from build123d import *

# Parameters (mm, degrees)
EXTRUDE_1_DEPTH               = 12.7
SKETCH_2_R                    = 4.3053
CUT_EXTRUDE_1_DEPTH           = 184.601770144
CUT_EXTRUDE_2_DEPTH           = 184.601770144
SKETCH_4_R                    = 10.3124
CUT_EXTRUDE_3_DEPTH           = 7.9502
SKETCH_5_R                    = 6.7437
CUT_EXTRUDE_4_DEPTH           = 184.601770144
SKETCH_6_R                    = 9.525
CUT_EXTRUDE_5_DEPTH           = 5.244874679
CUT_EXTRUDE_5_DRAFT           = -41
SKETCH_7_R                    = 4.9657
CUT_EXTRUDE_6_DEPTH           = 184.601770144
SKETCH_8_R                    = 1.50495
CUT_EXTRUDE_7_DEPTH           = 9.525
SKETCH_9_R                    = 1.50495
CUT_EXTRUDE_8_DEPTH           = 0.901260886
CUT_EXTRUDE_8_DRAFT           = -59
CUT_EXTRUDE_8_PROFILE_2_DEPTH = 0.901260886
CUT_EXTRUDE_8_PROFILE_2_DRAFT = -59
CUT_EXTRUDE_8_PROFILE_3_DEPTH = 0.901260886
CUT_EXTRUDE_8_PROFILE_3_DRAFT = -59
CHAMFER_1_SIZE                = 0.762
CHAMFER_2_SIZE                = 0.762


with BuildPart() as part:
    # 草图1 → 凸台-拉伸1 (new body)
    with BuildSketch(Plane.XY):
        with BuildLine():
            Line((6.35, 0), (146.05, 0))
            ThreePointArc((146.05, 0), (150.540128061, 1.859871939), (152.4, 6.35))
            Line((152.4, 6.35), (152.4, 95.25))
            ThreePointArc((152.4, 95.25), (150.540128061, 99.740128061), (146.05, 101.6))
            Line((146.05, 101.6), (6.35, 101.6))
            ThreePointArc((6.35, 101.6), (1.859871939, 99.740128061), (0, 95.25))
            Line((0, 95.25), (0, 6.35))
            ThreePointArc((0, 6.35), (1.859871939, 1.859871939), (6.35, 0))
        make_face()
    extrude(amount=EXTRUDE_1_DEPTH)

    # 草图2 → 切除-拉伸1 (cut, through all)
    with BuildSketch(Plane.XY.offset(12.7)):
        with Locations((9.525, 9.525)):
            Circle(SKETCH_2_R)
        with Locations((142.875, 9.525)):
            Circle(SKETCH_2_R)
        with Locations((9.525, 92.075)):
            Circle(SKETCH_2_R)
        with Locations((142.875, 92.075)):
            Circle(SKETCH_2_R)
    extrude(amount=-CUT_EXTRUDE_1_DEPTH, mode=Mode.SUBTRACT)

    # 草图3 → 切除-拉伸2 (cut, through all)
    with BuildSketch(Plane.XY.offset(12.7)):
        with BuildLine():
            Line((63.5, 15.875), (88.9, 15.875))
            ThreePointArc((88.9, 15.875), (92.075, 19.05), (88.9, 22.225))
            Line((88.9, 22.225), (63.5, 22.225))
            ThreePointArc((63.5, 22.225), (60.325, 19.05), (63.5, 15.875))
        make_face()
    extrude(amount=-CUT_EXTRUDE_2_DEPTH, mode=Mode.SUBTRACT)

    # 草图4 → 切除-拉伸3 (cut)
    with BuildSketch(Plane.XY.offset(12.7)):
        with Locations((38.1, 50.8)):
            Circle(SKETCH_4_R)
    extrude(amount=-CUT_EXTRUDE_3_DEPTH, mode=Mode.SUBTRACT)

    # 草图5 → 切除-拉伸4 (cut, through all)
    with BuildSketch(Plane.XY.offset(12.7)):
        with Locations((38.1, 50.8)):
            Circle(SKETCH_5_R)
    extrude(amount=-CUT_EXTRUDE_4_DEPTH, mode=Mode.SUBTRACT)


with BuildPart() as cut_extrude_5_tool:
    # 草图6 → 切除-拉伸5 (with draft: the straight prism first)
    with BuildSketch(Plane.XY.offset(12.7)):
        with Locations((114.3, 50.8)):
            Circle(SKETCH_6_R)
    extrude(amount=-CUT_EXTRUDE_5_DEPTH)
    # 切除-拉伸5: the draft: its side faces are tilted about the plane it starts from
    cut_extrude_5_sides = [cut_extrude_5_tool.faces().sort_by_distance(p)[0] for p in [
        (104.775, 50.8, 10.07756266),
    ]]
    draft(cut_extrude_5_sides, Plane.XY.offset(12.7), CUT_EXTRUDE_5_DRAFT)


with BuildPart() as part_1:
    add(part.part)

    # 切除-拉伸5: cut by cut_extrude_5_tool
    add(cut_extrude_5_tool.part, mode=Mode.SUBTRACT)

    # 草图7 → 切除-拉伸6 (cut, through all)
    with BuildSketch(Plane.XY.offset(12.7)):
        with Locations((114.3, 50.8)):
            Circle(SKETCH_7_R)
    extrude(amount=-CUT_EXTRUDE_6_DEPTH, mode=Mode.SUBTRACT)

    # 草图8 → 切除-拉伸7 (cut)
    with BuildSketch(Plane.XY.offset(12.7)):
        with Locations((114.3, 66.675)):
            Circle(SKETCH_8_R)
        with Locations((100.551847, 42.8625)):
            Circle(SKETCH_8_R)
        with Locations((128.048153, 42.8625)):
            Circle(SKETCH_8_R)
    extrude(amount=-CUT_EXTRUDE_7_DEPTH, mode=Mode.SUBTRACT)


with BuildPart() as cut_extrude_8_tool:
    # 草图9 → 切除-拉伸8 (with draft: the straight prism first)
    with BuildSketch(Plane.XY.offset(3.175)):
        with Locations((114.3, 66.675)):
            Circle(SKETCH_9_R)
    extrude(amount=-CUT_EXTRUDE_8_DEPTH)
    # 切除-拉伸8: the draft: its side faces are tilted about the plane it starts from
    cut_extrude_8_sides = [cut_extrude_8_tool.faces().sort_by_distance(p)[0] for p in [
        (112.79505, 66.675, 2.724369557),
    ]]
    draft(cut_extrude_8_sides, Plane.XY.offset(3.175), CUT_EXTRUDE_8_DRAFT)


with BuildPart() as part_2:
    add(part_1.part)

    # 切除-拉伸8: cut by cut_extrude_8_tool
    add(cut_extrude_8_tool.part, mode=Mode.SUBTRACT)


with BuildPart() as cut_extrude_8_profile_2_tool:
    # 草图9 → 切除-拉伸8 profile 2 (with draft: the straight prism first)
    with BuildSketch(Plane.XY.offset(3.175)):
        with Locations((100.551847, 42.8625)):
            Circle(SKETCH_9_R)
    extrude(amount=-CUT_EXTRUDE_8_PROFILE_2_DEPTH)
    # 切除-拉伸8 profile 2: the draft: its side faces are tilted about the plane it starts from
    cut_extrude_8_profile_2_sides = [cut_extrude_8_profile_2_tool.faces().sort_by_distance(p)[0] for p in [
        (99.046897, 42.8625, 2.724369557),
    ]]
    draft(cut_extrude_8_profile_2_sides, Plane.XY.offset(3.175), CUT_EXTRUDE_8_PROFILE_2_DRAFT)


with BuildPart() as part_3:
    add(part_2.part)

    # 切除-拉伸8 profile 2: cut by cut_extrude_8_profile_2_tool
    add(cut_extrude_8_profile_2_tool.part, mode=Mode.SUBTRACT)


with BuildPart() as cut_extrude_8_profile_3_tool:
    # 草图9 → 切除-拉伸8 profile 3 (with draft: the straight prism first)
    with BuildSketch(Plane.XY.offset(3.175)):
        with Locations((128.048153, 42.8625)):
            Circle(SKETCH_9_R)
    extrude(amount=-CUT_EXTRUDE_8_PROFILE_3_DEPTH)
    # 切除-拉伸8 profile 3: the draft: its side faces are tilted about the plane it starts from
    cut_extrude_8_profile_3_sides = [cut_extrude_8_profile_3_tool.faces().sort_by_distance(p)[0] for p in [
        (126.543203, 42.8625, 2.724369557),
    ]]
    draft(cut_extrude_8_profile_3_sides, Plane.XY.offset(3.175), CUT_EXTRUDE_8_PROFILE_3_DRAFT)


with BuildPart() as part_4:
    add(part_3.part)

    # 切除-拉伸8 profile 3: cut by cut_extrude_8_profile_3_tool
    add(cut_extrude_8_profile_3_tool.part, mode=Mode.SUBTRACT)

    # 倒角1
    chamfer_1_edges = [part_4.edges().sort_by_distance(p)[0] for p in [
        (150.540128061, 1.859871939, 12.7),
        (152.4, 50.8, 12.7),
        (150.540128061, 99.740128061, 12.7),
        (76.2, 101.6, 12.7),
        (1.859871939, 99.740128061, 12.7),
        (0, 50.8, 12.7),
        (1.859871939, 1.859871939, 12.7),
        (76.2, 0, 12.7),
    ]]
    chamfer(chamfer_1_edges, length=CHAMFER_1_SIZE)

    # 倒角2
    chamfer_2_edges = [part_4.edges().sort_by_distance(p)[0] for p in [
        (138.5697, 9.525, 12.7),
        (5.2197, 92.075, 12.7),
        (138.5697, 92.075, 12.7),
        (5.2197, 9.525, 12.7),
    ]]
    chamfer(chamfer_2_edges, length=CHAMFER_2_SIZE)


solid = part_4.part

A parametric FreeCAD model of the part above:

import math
import FreeCAD as App
import Part
import Sketcher
Q = App.Units.Quantity


def edges_at(feature, points):
    """Names of the edges that pass closest to the given points."""
    edges = feature.Shape.Edges
    near = lambda p: min(range(len(edges)), key=lambda i: edges[i].distToShape(Part.Vertex(*p))[0])
    return sorted({f"Edge{near(p) + 1}" for p in points})


def faces_at(feature, points):
    """Names of the faces that lie closest to the given points."""
    faces = feature.Shape.Faces
    near = lambda p: min(range(len(faces)), key=lambda i: faces[i].distToShape(Part.Vertex(*p))[0])
    return sorted({f"Face{near(p) + 1}" for p in points})

doc = App.newDocument("Part")
body = doc.addObject("PartDesign::Body", "Body")

# Sketch on XY plane
sketch1 = body.newObject("Sketcher::SketchObject", "Sketch")
sketch1.AttachmentSupport = (doc.getObject("XY_Plane"), [""])
sketch1.MapMode = "FlatFace"
sketch1.addGeometry([
    Part.LineSegment(App.Vector(6, 0, 0), App.Vector(146, 0, 0)),  # 0
    Part.ArcOfCircle(Part.Circle(App.Vector(146, 6, 0), App.Vector(0, 0, 1), 6), math.radians(-90), math.radians(0)),  # 1
    Part.LineSegment(App.Vector(152, 6, 0), App.Vector(152, 95, 0)),  # 2
    Part.ArcOfCircle(Part.Circle(App.Vector(146, 95, 0), App.Vector(0, 0, 1), 6), math.radians(0), math.radians(90)),  # 3
    Part.LineSegment(App.Vector(146, 102, 0), App.Vector(6, 102, 0)),  # 4
    Part.ArcOfCircle(Part.Circle(App.Vector(6, 95, 0), App.Vector(0, 0, 1), 6), math.radians(90), math.radians(180)),  # 5
    Part.LineSegment(App.Vector(0, 95, 0), App.Vector(0, 6, 0)),  # 6
    Part.ArcOfCircle(Part.Circle(App.Vector(6, 6, 0), App.Vector(0, 0, 1), 6), math.radians(180), math.radians(270)),  # 7
], False)
sketch1.addConstraint([
    Sketcher.Constraint("Tangent", 0, 2, 1, 1),
    Sketcher.Constraint("Tangent", 1, 2, 2, 1),
    Sketcher.Constraint("Tangent", 2, 2, 3, 1),
    Sketcher.Constraint("Tangent", 3, 2, 4, 1),
    Sketcher.Constraint("Tangent", 4, 2, 5, 1),
    Sketcher.Constraint("Tangent", 5, 2, 6, 1),
    Sketcher.Constraint("Tangent", 6, 2, 7, 1),
    Sketcher.Constraint("Tangent", 7, 2, 0, 1),
    Sketcher.Constraint("Horizontal", 0),
    Sketcher.Constraint("Vertical", 2),
    Sketcher.Constraint("Horizontal", 4),
    Sketcher.Constraint("Vertical", 6),
    Sketcher.Constraint("Equal", 1, 3),
    Sketcher.Constraint("Equal", 3, 5),
    Sketcher.Constraint("Equal", 5, 7),
    Sketcher.Constraint("PointOnObject", 0, 2, -1),
    Sketcher.Constraint("PointOnObject", 5, 2, -2),
    Sketcher.Constraint("Radius", 1, Q("0.25 in")),
    Sketcher.Constraint("DistanceX", 0, 1, 0, 2, Q("5.5 in")),
    Sketcher.Constraint("DistanceY", 2, 1, 2, 2, Q("3.5 in")),
])
pad1 = body.newObject("PartDesign::Pad", "Pad")
pad1.Profile = sketch1
pad1.Length = Q("0.5 in")

# Sketch on XY plane
sketch2 = body.newObject("Sketcher::SketchObject", "Sketch001")
sketch2.AttachmentSupport = (doc.getObject("XY_Plane"), [""])
sketch2.MapMode = "FlatFace"
sketch2.AttachmentOffset = App.Placement(App.Vector(0, 0, 0.5 * 25.4), App.Rotation())
sketch2.addGeometry([
    Part.Circle(App.Vector(9.5, 9.5, 0), App.Vector(0, 0, 1), 4.3),
    Part.Circle(App.Vector(142.9, 9.5, 0), App.Vector(0, 0, 1), 4.3),
    Part.Circle(App.Vector(9.5, 92.1, 0), App.Vector(0, 0, 1), 4.3),
    Part.Circle(App.Vector(142.9, 92.1, 0), App.Vector(0, 0, 1), 4.3),
], False)
sketch2.addConstraint([
    Sketcher.Constraint("Equal", 0, 1),
    Sketcher.Constraint("Equal", 1, 2),
    Sketcher.Constraint("Equal", 2, 3),
    Sketcher.Constraint("Horizontal", 0, 3, 1, 3),
    Sketcher.Constraint("Horizontal", 2, 3, 3, 3),
    Sketcher.Constraint("Vertical", 0, 3, 2, 3),
    Sketcher.Constraint("Vertical", 1, 3, 3, 3),
    Sketcher.Constraint("Diameter", 0, Q("0.339 in")),
    Sketcher.Constraint("DistanceX", 0, 3, 1, 3, Q("5.25 in")),
    Sketcher.Constraint("DistanceY", 0, 3, 2, 3, Q("3.25 in")),
    Sketcher.Constraint("DistanceX", -1, 1, 0, 3, Q("0.375 in")),
    Sketcher.Constraint("DistanceY", -1, 1, 0, 3, Q("0.375 in")),
])
pocket1 = body.newObject("PartDesign::Pocket", "Pocket")
pocket1.Profile = sketch2
pocket1.Type = "ThroughAll"

# Sketch on XY plane
sketch3 = body.newObject("Sketcher::SketchObject", "Sketch002")
sketch3.AttachmentSupport = (doc.getObject("XY_Plane"), [""])
sketch3.MapMode = "FlatFace"
sketch3.AttachmentOffset = App.Placement(App.Vector(0, 0, 0.5 * 25.4), App.Rotation())
sketch3.addGeometry([
    Part.LineSegment(App.Vector(63.5, 15.9, 0), App.Vector(88.9, 15.9, 0)),
    Part.ArcOfCircle(Part.Circle(App.Vector(88.9, 19.1, 0), App.Vector(0, 0, 1), 3.2), math.radians(-90), math.radians(90)),
    Part.LineSegment(App.Vector(88.9, 22.2, 0), App.Vector(63.5, 22.2, 0)),
    Part.ArcOfCircle(Part.Circle(App.Vector(63.5, 19.1, 0), App.Vector(0, 0, 1), 3.2), math.radians(90), math.radians(270)),
], False)
sketch3.addConstraint([
    Sketcher.Constraint("Tangent", 0, 2, 1, 1),
    Sketcher.Constraint("Tangent", 1, 2, 2, 1),
    Sketcher.Constraint("Tangent", 2, 2, 3, 1),
    Sketcher.Constraint("Tangent", 3, 2, 0, 1),
    Sketcher.Constraint("Horizontal", 0),
    Sketcher.Constraint("Horizontal", 2),
    Sketcher.Constraint("DistanceX", 0, 1, 0, 2, Q("1 in")),
    Sketcher.Constraint("Radius", 1, Q("0.125 in")),
    Sketcher.Constraint("DistanceX", -1, 1, 1, 3, Q("3.5 in")),
    Sketcher.Constraint("DistanceY", -1, 1, 1, 3, Q("0.75 in")),
])
pocket2 = body.newObject("PartDesign::Pocket", "Pocket001")
pocket2.Profile = sketch3
pocket2.Type = "ThroughAll"

# Sketch on XY plane
sketch4 = body.newObject("Sketcher::SketchObject", "Sketch003")
sketch4.AttachmentSupport = (doc.getObject("XY_Plane"), [""])
sketch4.MapMode = "FlatFace"
sketch4.AttachmentOffset = App.Placement(App.Vector(0, 0, 0.5 * 25.4), App.Rotation())
sketch4.addGeometry(Part.Circle(App.Vector(38, 51, 0), App.Vector(0, 0, 1), 10), False)
sketch4.addConstraint([
    Sketcher.Constraint("Diameter", 0, Q("0.812 in")),
    Sketcher.Constraint("DistanceY", -1, 1, 0, 3, Q("2 in")),
    Sketcher.Constraint("DistanceX", -1, 1, 0, 3, Q("1.5 in")),
])
pocket3 = body.newObject("PartDesign::Pocket", "Pocket002")
pocket3.Profile = sketch4
pocket3.Length = Q("0.313 in")

# Sketch on XY plane
sketch5 = body.newObject("Sketcher::SketchObject", "Sketch004")
sketch5.AttachmentSupport = (doc.getObject("XY_Plane"), [""])
sketch5.MapMode = "FlatFace"
sketch5.AttachmentOffset = App.Placement(App.Vector(0, 0, 0.5 * 25.4), App.Rotation())
sketch5.addGeometry(Part.Circle(App.Vector(38, 51, 0), App.Vector(0, 0, 1), 7), False)
sketch5.addConstraint([
    Sketcher.Constraint("Diameter", 0, Q("0.531 in")),
    Sketcher.Constraint("DistanceY", -1, 1, 0, 3, Q("2 in")),
    Sketcher.Constraint("DistanceX", -1, 1, 0, 3, Q("1.5 in")),
])
pocket4 = body.newObject("PartDesign::Pocket", "Pocket003")
pocket4.Profile = sketch5
pocket4.Type = "ThroughAll"
body2 = doc.addObject("PartDesign::Body", "Body001")

# Sketch on XY plane
sketch6 = body2.newObject("Sketcher::SketchObject", "Sketch005")
sketch6.AttachmentSupport = (doc.getObject("XY_Plane001"), [""])
sketch6.MapMode = "FlatFace"
sketch6.AttachmentOffset = App.Placement(App.Vector(0, 0, 0.5 * 25.4), App.Rotation())
sketch6.addGeometry(Part.Circle(App.Vector(114, 51, 0), App.Vector(0, 0, 1), 10), False)
sketch6.addConstraint([
    Sketcher.Constraint("Diameter", 0, Q("0.75 in")),
    Sketcher.Constraint("DistanceY", -1, 1, 0, 3, Q("2 in")),
    Sketcher.Constraint("DistanceX", -1, 1, 0, 3, Q("4.5 in")),
])
pad2 = body2.newObject("PartDesign::Pad", "Pad001")
pad2.Profile = sketch6
pad2.Length = 5.244875
pad2.Reversed = True
doc.recompute()

datumplane = body2.newObject("PartDesign::Plane", "DatumPlane")
datumplane.AttachmentSupport = (doc.getObject("XY_Plane001"), [""])
datumplane.MapMode = "FlatFace"
datumplane.AttachmentOffset = App.Placement(App.Vector(0, 0, 0.5 * 25.4), App.Rotation())
draft = body2.newObject("PartDesign::Draft", "Draft")
draft.Base = (pad2, faces_at(pad2, [(104.775, 50.8, 10.078)]))
draft.NeutralPlane = (datumplane, [""])
draft.Angle = 41
draft.Reversed = True
doc.recompute()

boolean = body.newObject("PartDesign::Boolean", "Boolean")
boolean.Type = "Cut"
boolean.addObjects([body2])

# Sketch on XY plane
sketch7 = body.newObject("Sketcher::SketchObject", "Sketch006")
sketch7.AttachmentSupport = (doc.getObject("XY_Plane"), [""])
sketch7.MapMode = "FlatFace"
sketch7.AttachmentOffset = App.Placement(App.Vector(0, 0, 0.5 * 25.4), App.Rotation())
sketch7.addGeometry(Part.Circle(App.Vector(114.3, 50.8, 0), App.Vector(0, 0, 1), 5), False)
sketch7.addConstraint([
    Sketcher.Constraint("Diameter", 0, Q("0.391 in")),
    Sketcher.Constraint("DistanceY", -1, 1, 0, 3, Q("2 in")),
    Sketcher.Constraint("DistanceX", -1, 1, 0, 3, Q("4.5 in")),
])
pocket5 = body.newObject("PartDesign::Pocket", "Pocket004")
pocket5.Profile = sketch7
pocket5.Type = "ThroughAll"

# Sketch on XY plane
sketch8 = body.newObject("Sketcher::SketchObject", "Sketch007")
sketch8.AttachmentSupport = (doc.getObject("XY_Plane"), [""])
sketch8.MapMode = "FlatFace"
sketch8.AttachmentOffset = App.Placement(App.Vector(0, 0, 0.5 * 25.4), App.Rotation())
sketch8.addGeometry([
    Part.Circle(App.Vector(114.3, 66.7, 0), App.Vector(0, 0, 1), 1.5),
    Part.Circle(App.Vector(100.6, 42.9, 0), App.Vector(0, 0, 1), 1.5),
    Part.Circle(App.Vector(128, 42.9, 0), App.Vector(0, 0, 1), 1.5),
], False)
sketch8.addConstraint([
    Sketcher.Constraint("Equal", 0, 1),
    Sketcher.Constraint("Equal", 1, 2),
    Sketcher.Constraint("Horizontal", 1, 3, 2, 3),
    Sketcher.Constraint("Diameter", 0, Q("0.1185 in")),
    Sketcher.Constraint("DistanceX", -1, 1, 0, 3, Q("4.5 in")),
    Sketcher.Constraint("DistanceY", -1, 1, 0, 3, Q("2.625 in")),
    Sketcher.Constraint("DistanceY", -1, 1, 1, 3, Q("1.6875 in")),
    Sketcher.Constraint("DistanceX", -1, 1, 1, 3, Q("100.551847 mm")),
    Sketcher.Constraint("DistanceX", -1, 1, 2, 3, Q("128.048153 mm")),
])
pocket6 = body.newObject("PartDesign::Pocket", "Pocket005")
pocket6.Profile = sketch8
pocket6.Length = Q("0.375 in")
body3 = doc.addObject("PartDesign::Body", "Body002")

# Sketch on XY plane
sketch9 = body3.newObject("Sketcher::SketchObject", "Sketch008")
sketch9.AttachmentSupport = (doc.getObject("XY_Plane002"), [""])
sketch9.MapMode = "FlatFace"
sketch9.AttachmentOffset = App.Placement(App.Vector(0, 0, 0.125 * 25.4), App.Rotation())
sketch9.addGeometry(Part.Circle(App.Vector(114.3, 66.7, 0), App.Vector(0, 0, 1), 1.5), False)
sketch9.addConstraint([
    Sketcher.Constraint("Diameter", 0, Q("0.1185 in")),
    Sketcher.Constraint("DistanceX", -1, 1, 0, 3, Q("4.5 in")),
    Sketcher.Constraint("DistanceY", -1, 1, 0, 3, Q("2.625 in")),
])
pad3 = body3.newObject("PartDesign::Pad", "Pad002")
pad3.Profile = sketch9
pad3.Length = 0.901261
pad3.Reversed = True
doc.recompute()

datumplane2 = body3.newObject("PartDesign::Plane", "DatumPlane001")
datumplane2.AttachmentSupport = (doc.getObject("XY_Plane002"), [""])
datumplane2.MapMode = "FlatFace"
datumplane2.AttachmentOffset = App.Placement(App.Vector(0, 0, 0.125 * 25.4), App.Rotation())
draft2 = body3.newObject("PartDesign::Draft", "Draft001")
draft2.Base = (pad3, faces_at(pad3, [(112.795, 66.675, 2.724)]))
draft2.NeutralPlane = (datumplane2, [""])
draft2.Angle = 59
draft2.Reversed = True
doc.recompute()

boolean2 = body.newObject("PartDesign::Boolean", "Boolean001")
boolean2.Type = "Cut"
boolean2.addObjects([body3])
body4 = doc.addObject("PartDesign::Body", "Body003")

# Sketch on XY plane
sketch10 = body4.newObject("Sketcher::SketchObject", "Sketch009")
sketch10.AttachmentSupport = (doc.getObject("XY_Plane003"), [""])
sketch10.MapMode = "FlatFace"
sketch10.AttachmentOffset = App.Placement(App.Vector(0, 0, 0.125 * 25.4), App.Rotation())
sketch10.addGeometry(Part.Circle(App.Vector(100.6, 42.9, 0), App.Vector(0, 0, 1), 1.5), False)
sketch10.addConstraint([
    Sketcher.Constraint("Diameter", 0, Q("0.1185 in")),
    Sketcher.Constraint("DistanceY", -1, 1, 0, 3, Q("1.6875 in")),
    Sketcher.Constraint("DistanceX", -1, 1, 0, 3, Q("100.551847 mm")),
])
pad4 = body4.newObject("PartDesign::Pad", "Pad003")
pad4.Profile = sketch10
pad4.Length = 0.901261
pad4.Reversed = True
doc.recompute()

datumplane3 = body4.newObject("PartDesign::Plane", "DatumPlane002")
datumplane3.AttachmentSupport = (doc.getObject("XY_Plane003"), [""])
datumplane3.MapMode = "FlatFace"
datumplane3.AttachmentOffset = App.Placement(App.Vector(0, 0, 0.125 * 25.4), App.Rotation())
draft3 = body4.newObject("PartDesign::Draft", "Draft002")
draft3.Base = (pad4, faces_at(pad4, [(99.047, 42.862, 2.724)]))
draft3.NeutralPlane = (datumplane3, [""])
draft3.Angle = 59
draft3.Reversed = True
doc.recompute()

boolean3 = body.newObject("PartDesign::Boolean", "Boolean002")
boolean3.Type = "Cut"
boolean3.addObjects([body4])
body5 = doc.addObject("PartDesign::Body", "Body004")

# Sketch on XY plane
sketch11 = body5.newObject("Sketcher::SketchObject", "Sketch010")
sketch11.AttachmentSupport = (doc.getObject("XY_Plane004"), [""])
sketch11.MapMode = "FlatFace"
sketch11.AttachmentOffset = App.Placement(App.Vector(0, 0, 0.125 * 25.4), App.Rotation())
sketch11.addGeometry(Part.Circle(App.Vector(128, 42.9, 0), App.Vector(0, 0, 1), 1.5), False)
sketch11.addConstraint([
    Sketcher.Constraint("Diameter", 0, Q("0.1185 in")),
    Sketcher.Constraint("DistanceY", -1, 1, 0, 3, Q("1.6875 in")),
    Sketcher.Constraint("DistanceX", -1, 1, 0, 3, Q("128.048153 mm")),
])
pad5 = body5.newObject("PartDesign::Pad", "Pad004")
pad5.Profile = sketch11
pad5.Length = 0.901261
pad5.Reversed = True
doc.recompute()

datumplane4 = body5.newObject("PartDesign::Plane", "DatumPlane003")
datumplane4.AttachmentSupport = (doc.getObject("XY_Plane004"), [""])
datumplane4.MapMode = "FlatFace"
datumplane4.AttachmentOffset = App.Placement(App.Vector(0, 0, 0.125 * 25.4), App.Rotation())
draft4 = body5.newObject("PartDesign::Draft", "Draft003")
draft4.Base = (pad5, faces_at(pad5, [(126.543, 42.862, 2.724)]))
draft4.NeutralPlane = (datumplane4, [""])
draft4.Angle = 59
draft4.Reversed = True
doc.recompute()

boolean4 = body.newObject("PartDesign::Boolean", "Boolean003")
boolean4.Type = "Cut"
boolean4.addObjects([body5])
doc.recompute()

chamfer = body.newObject("PartDesign::Chamfer", "Chamfer")
chamfer.Base = (boolean4, edges_at(boolean4, [
    (150.54, 1.86, 12.7),
    (152.4, 50.8, 12.7),
    (150.54, 99.74, 12.7),
    (76.2, 101.6, 12.7),
    (1.86, 99.74, 12.7),
    (0, 50.8, 12.7),
    (1.86, 1.86, 12.7),
    (76.2, 0, 12.7),
]))
chamfer.Size = Q("0.03 in")
doc.recompute()

chamfer2 = body.newObject("PartDesign::Chamfer", "Chamfer001")
chamfer2.Base = (chamfer, edges_at(chamfer, [
    (138.57, 9.525, 12.7),
    (5.22, 92.075, 12.7),
    (138.57, 92.075, 12.7),
    (5.22, 9.525, 12.7),
]))
chamfer2.Size = Q("0.03 in")

doc.recompute()
